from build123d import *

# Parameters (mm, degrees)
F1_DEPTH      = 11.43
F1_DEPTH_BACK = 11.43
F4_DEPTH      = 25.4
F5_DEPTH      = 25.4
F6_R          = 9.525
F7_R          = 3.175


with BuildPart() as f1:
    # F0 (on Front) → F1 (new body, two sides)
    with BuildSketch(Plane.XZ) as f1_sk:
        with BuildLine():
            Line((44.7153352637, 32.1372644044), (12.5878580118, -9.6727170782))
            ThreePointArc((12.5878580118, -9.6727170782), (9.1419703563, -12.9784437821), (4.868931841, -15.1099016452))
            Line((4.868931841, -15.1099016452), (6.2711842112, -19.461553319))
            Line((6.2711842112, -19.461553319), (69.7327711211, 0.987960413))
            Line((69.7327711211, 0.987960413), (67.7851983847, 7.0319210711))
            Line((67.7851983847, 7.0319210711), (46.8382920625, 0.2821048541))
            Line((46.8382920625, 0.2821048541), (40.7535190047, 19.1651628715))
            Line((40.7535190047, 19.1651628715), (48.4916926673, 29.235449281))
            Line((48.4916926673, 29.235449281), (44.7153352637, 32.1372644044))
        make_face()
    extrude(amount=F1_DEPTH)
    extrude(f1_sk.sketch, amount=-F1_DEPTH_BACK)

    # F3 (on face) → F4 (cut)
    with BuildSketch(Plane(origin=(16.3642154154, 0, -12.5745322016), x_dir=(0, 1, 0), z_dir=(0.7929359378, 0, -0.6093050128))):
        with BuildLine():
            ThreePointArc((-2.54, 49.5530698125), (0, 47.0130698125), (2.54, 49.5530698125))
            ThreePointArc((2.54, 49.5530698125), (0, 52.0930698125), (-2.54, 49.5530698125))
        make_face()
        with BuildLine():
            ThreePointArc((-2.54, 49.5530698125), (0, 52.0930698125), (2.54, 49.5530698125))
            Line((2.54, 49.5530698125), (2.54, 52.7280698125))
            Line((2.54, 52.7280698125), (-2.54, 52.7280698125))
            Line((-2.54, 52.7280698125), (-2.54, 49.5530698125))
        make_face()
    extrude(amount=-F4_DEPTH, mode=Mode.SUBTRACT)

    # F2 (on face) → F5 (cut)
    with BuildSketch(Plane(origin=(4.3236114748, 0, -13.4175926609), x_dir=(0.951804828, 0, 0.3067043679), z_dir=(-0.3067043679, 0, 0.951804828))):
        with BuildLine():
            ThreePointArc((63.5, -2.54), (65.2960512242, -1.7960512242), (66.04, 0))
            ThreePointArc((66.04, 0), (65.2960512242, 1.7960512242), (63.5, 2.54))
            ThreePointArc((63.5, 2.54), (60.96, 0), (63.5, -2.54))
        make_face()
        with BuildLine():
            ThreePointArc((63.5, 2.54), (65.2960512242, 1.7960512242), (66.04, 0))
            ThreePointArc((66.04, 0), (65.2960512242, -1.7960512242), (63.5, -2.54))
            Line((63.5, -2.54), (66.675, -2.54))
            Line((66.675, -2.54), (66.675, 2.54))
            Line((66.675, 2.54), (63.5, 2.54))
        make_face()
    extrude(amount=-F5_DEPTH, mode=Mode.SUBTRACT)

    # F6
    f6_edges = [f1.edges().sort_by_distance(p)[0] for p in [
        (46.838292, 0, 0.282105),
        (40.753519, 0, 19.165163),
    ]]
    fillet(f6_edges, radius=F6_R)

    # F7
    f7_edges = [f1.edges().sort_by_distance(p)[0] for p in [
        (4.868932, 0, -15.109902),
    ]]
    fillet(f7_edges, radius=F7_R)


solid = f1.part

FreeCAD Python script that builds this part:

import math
import FreeCAD as App
import Part
import Sketcher
from FreeCAD import Vector
Q = App.Units.Quantity


def edges_at(feature, points):
    """Names of the edges that pass closest to the given points."""
    edges = feature.Shape.Edges
    near = lambda p: min(range(len(edges)), key=lambda i: edges[i].distToShape(Part.Vertex(*p))[0])
    return sorted({f"Edge{near(p) + 1}" for p in points})

doc = App.newDocument("Part")
body = doc.addObject("PartDesign::Body", "Body")

sketch1 = body.newObject("Sketcher::SketchObject", "Sketch")
sketch1.AttachmentSupport = (doc.getObject("XZ_Plane"), [""])
sketch1.MapMode = "FlatFace"
sketch1.addGeometry(Part.LineSegment(Vector(44.715335, 32.137264, 0), Vector(12.587858, -9.672717, 0)), False)
sketch1.addGeometry(Part.ArcOfCircle(Part.Circle(Vector(0, 0, 0), Vector(0, 0, 1), 15.875), math.radians(-72.139268), math.radians(-37.539268)), False)
sketch1.addGeometry(Part.LineSegment(Vector(4.868932, -15.109902, 0), Vector(6.271184, -19.461553, 0)), False)
sketch1.addGeometry(Part.LineSegment(Vector(6.271184, -19.461553, 0), Vector(69.732771, 0.98796, 0)), False)
sketch1.addGeometry(Part.LineSegment(Vector(69.732771, 0.98796, 0), Vector(67.785198, 7.031921, 0)), False)
sketch1.addGeometry(Part.LineSegment(Vector(67.785198, 7.031921, 0), Vector(46.838292, 0.282105, 0)), False)
sketch1.addGeometry(Part.LineSegment(Vector(46.838292, 0.282105, 0), Vector(40.753519, 19.165163, 0)), False)
sketch1.addGeometry(Part.LineSegment(Vector(40.753519, 19.165163, 0), Vector(48.491693, 29.235449, 0)), False)
sketch1.addGeometry(Part.LineSegment(Vector(48.491693, 29.235449, 0), Vector(44.715335, 32.137264, 0)), False)
sketch1.addConstraint(Sketcher.Constraint("Tangent", 0, 2, 1, 2))
sketch1.addConstraint(Sketcher.Constraint("Coincident", 1, 1, 2, 1))
sketch1.addConstraint(Sketcher.Constraint("Coincident", 2, 2, 3, 1))
sketch1.addConstraint(Sketcher.Constraint("Coincident", 3, 2, 4, 1))
sketch1.addConstraint(Sketcher.Constraint("Coincident", 4, 2, 5, 1))
sketch1.addConstraint(Sketcher.Constraint("Coincident", 5, 2, 6, 1))
sketch1.addConstraint(Sketcher.Constraint("Coincident", 6, 2, 7, 1))
sketch1.addConstraint(Sketcher.Constraint("Coincident", 7, 2, 8, 1))
sketch1.addConstraint(Sketcher.Constraint("Coincident", 8, 2, 0, 1))
sketch1.addConstraint(Sketcher.Constraint("Coincident", 1, 3, -1, 1))
sketch1.addConstraint(Sketcher.Constraint("Perpendicular", 2, 3))
sketch1.addConstraint(Sketcher.Constraint("Perpendicular", 3, 4))
sketch1.addConstraint(Sketcher.Constraint("Perpendicular", 4, 5))
sketch1.addConstraint(Sketcher.Constraint("Perpendicular", 5, 6))
sketch1.addConstraint(Sketcher.Constraint("Parallel", 0, 7))
sketch1.addConstraint(Sketcher.Constraint("Perpendicular", 7, 8))
sketch1.addConstraint(Sketcher.Constraint("Radius", 1, Q("0.625 in")))
sketch1.addConstraint(Sketcher.Constraint("Distance", 7, Q("0.5 in")))
sketch1.addConstraint(Sketcher.Constraint("Distance", 2, Q("0.18 in")))
sketch1.addConstraint(Sketcher.Constraint("Distance", 4, Q("0.25 in")))
sketch1.addConstraint(Sketcher.Constraint("Distance", 3, Q("2.625 in")))
sketch1.addConstraint(Sketcher.Constraint("Distance", 8, Q("0.1875 in")))
sketch1.addConstraint(Sketcher.Constraint("DistanceY", 1, 1, -1, 1, 15.109902))
sketch1.addConstraint(Sketcher.Constraint("DistanceX", -1, 1, 4, 2, 67.785198))
sketch1.addConstraint(Sketcher.Constraint("DistanceX", 5, 2, 7, 2, 1.653401))
sketch1.addConstraint(Sketcher.Constraint("DistanceY", 6, 2, 8, 2, 12.972102))
pad1 = body.newObject("PartDesign::Pad", "Pad")
pad1.Profile = sketch1
pad1.Type = "TwoLengths"
pad1.Length = Q("0.45 in")
pad1.Length2 = Q("0.45 in")

sketch2 = body.newObject("Sketcher::SketchObject", "Sketch001")
sketch2.Placement = App.Placement(Vector(16.364215, 0, -12.574532), App.Rotation(Vector(0, 1, 0), Vector(0.609305013, 0, 0.792935938), Vector(0.792935938, 0, -0.609305013), "ZXY"))
sketch2.addGeometry(Part.ArcOfCircle(Part.Circle(Vector(0, 49.55307, 0), Vector(0, 0, 1), 2.54), math.radians(180), math.radians(360)), False)
sketch2.addGeometry(Part.LineSegment(Vector(2.54, 49.55307, 0), Vector(2.54, 52.72807, 0)), False)
sketch2.addGeometry(Part.LineSegment(Vector(2.54, 52.72807, 0), Vector(-2.54, 52.72807, 0)), False)
sketch2.addGeometry(Part.LineSegment(Vector(-2.54, 52.72807, 0), Vector(-2.54, 49.55307, 0)), False)
sketch2.addConstraint(Sketcher.Constraint("Tangent", 0, 2, 1, 1))
sketch2.addConstraint(Sketcher.Constraint("Coincident", 1, 2, 2, 1))
sketch2.addConstraint(Sketcher.Constraint("Coincident", 2, 2, 3, 1))
sketch2.addConstraint(Sketcher.Constraint("Tangent", 3, 2, 0, 1))
sketch2.addConstraint(Sketcher.Constraint("Vertical", 1))
sketch2.addConstraint(Sketcher.Constraint("Horizontal", 2))
sketch2.addConstraint(Sketcher.Constraint("Vertical", 3))
sketch2.addConstraint(Sketcher.Constraint("PointOnObject", 0, 3, -2))
sketch2.addConstraint(Sketcher.Constraint("Radius", 0, Q("0.1 in")))
sketch2.addConstraint(Sketcher.Constraint("DistanceY", 1, 1, 1, 2, Q("0.125 in")))
sketch2.addConstraint(Sketcher.Constraint("DistanceY", -1, 1, 0, 3, 49.55307))
pocket1 = body.newObject("PartDesign::Pocket", "Pocket")
pocket1.Profile = sketch2
pocket1.Length = Q("1 in")

sketch3 = body.newObject("Sketcher::SketchObject", "Sketch002")
sketch3.Placement = App.Placement(Vector(4.323611, 0, -13.417593), App.Rotation(Vector(0.951804828, 0, 0.306704368), Vector(0, 1, 0), Vector(-0.306704368, 0, 0.951804828), "ZXY"))
sketch3.addGeometry(Part.ArcOfCircle(Part.Circle(Vector(63.5, 0, 0), Vector(0, 0, 1), 2.54), math.radians(90), math.radians(270)), False)
sketch3.addGeometry(Part.LineSegment(Vector(63.5, -2.54, 0), Vector(66.675, -2.54, 0)), False)
sketch3.addGeometry(Part.LineSegment(Vector(66.675, -2.54, 0), Vector(66.675, 2.54, 0)), False)
sketch3.addGeometry(Part.LineSegment(Vector(66.675, 2.54, 0), Vector(63.5, 2.54, 0)), False)
sketch3.addConstraint(Sketcher.Constraint("Tangent", 0, 2, 1, 1))
sketch3.addConstraint(Sketcher.Constraint("Coincident", 1, 2, 2, 1))
sketch3.addConstraint(Sketcher.Constraint("Coincident", 2, 2, 3, 1))
sketch3.addConstraint(Sketcher.Constraint("Tangent", 3, 2, 0, 1))
sketch3.addConstraint(Sketcher.Constraint("Horizontal", 1))
sketch3.addConstraint(Sketcher.Constraint("Vertical", 2))
sketch3.addConstraint(Sketcher.Constraint("Horizontal", 3))
sketch3.addConstraint(Sketcher.Constraint("PointOnObject", 0, 3, -1))
sketch3.addConstraint(Sketcher.Constraint("Radius", 0, Q("0.1 in")))
sketch3.addConstraint(Sketcher.Constraint("DistanceX", -1, 1, 0, 3, Q("2.5 in")))
sketch3.addConstraint(Sketcher.Constraint("DistanceX", 1, 1, 1, 2, Q("0.125 in")))
pocket2 = body.newObject("PartDesign::Pocket", "Pocket001")
pocket2.Profile = sketch3
pocket2.Length = Q("1 in")
doc.recompute()

fillet = body.newObject("PartDesign::Fillet", "Fillet")
fillet.Base = (pocket2, edges_at(pocket2, [(46.838, 0, 0.282), (40.754, 0, 19.165)]))
fillet.Radius = Q("0.375 in")
doc.recompute()

fillet2 = body.newObject("PartDesign::Fillet", "Fillet001")
fillet2.Base = (fillet, edges_at(fillet, [(4.869, 0, -15.11)]))
fillet2.Radius = Q("0.125 in")

doc.recompute()
